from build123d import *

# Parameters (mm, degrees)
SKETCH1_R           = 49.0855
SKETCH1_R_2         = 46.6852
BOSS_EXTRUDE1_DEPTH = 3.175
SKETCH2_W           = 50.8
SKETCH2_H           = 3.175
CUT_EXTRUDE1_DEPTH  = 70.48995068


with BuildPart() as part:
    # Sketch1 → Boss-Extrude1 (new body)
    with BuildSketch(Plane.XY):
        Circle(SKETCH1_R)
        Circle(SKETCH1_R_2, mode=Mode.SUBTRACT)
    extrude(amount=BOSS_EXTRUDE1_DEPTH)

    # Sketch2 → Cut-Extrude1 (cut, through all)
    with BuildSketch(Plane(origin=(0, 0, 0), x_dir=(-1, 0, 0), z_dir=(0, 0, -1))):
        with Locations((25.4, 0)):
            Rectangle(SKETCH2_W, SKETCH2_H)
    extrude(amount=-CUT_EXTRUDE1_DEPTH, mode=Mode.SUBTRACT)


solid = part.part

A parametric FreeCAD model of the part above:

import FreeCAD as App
import Part
import Sketcher

V = App.Vector
Q = App.Units.Quantity


def add_polygon(sketch, points):
    """Adds a closed chain of lines whose ends are joined by coincident constraints."""
    first, n = sketch.GeometryCount, len(points)
    for a, b in zip(points, points[1:] + points[:1]):
        sketch.addGeometry(Part.LineSegment(App.Vector(*a, 0), App.Vector(*b, 0)), False)
    for i in range(n):
        sketch.addConstraint(Sketcher.Constraint("Coincident", first + i, 2, first + (i + 1) % n, 1))

doc = App.newDocument("Part")
body = doc.addObject("PartDesign::Body", "Body")

sketch1 = body.newObject("Sketcher::SketchObject", "Sketch")
sketch1.AttachmentSupport = (doc.getObject("XY_Plane"), [""])
sketch1.MapMode = "FlatFace"
sketch1.addGeometry([
    Part.Circle(V(0, 0, 0), V(0, 0, 1), 49),
    Part.Circle(V(0, 0, 0), V(0, 0, 1), 47),
], False)
sketch1.addConstraint([
    Sketcher.Constraint("Coincident", 0, 3, -1, 1),
    Sketcher.Constraint("Coincident", 1, 3, -1, 1),
    Sketcher.Constraint("Diameter", 0, Q("3.865 in")),
    Sketcher.Constraint("Diameter", 1, Q("3.676 in")),
])
pad1 = body.newObject("PartDesign::Pad", "Pad")
pad1.Profile = sketch1
pad1.Length = Q("0.125 in")

sketch2 = body.newObject("Sketcher::SketchObject", "Sketch001")
sketch2.AttachmentSupport = (doc.getObject("XY_Plane"), [""])
sketch2.MapMode = "FlatFace"
add_polygon(sketch2, [(0, 1.6), (0, -1.6), (-50.8, -1.6), (-50.8, 1.6)])
sketch2.addConstraint([
    Sketcher.Constraint("Vertical", 0),
    Sketcher.Constraint("Horizontal", 1),
    Sketcher.Constraint("Vertical", 2),
    Sketcher.Constraint("Horizontal", 3),
    Sketcher.Constraint("Symmetric", 0, 2, 3, 2, -1, 1),
    Sketcher.Constraint("DistanceX", 1, 2, 1, 1, Q("2 in")),
    Sketcher.Constraint("DistanceY", 0, 2, 0, 1, Q("0.125 in")),
])
pocket1 = body.newObject("PartDesign::Pocket", "Pocket")
pocket1.Profile = sketch2
pocket1.Type = "ThroughAll"
pocket1.Reversed = True

doc.recompute()
